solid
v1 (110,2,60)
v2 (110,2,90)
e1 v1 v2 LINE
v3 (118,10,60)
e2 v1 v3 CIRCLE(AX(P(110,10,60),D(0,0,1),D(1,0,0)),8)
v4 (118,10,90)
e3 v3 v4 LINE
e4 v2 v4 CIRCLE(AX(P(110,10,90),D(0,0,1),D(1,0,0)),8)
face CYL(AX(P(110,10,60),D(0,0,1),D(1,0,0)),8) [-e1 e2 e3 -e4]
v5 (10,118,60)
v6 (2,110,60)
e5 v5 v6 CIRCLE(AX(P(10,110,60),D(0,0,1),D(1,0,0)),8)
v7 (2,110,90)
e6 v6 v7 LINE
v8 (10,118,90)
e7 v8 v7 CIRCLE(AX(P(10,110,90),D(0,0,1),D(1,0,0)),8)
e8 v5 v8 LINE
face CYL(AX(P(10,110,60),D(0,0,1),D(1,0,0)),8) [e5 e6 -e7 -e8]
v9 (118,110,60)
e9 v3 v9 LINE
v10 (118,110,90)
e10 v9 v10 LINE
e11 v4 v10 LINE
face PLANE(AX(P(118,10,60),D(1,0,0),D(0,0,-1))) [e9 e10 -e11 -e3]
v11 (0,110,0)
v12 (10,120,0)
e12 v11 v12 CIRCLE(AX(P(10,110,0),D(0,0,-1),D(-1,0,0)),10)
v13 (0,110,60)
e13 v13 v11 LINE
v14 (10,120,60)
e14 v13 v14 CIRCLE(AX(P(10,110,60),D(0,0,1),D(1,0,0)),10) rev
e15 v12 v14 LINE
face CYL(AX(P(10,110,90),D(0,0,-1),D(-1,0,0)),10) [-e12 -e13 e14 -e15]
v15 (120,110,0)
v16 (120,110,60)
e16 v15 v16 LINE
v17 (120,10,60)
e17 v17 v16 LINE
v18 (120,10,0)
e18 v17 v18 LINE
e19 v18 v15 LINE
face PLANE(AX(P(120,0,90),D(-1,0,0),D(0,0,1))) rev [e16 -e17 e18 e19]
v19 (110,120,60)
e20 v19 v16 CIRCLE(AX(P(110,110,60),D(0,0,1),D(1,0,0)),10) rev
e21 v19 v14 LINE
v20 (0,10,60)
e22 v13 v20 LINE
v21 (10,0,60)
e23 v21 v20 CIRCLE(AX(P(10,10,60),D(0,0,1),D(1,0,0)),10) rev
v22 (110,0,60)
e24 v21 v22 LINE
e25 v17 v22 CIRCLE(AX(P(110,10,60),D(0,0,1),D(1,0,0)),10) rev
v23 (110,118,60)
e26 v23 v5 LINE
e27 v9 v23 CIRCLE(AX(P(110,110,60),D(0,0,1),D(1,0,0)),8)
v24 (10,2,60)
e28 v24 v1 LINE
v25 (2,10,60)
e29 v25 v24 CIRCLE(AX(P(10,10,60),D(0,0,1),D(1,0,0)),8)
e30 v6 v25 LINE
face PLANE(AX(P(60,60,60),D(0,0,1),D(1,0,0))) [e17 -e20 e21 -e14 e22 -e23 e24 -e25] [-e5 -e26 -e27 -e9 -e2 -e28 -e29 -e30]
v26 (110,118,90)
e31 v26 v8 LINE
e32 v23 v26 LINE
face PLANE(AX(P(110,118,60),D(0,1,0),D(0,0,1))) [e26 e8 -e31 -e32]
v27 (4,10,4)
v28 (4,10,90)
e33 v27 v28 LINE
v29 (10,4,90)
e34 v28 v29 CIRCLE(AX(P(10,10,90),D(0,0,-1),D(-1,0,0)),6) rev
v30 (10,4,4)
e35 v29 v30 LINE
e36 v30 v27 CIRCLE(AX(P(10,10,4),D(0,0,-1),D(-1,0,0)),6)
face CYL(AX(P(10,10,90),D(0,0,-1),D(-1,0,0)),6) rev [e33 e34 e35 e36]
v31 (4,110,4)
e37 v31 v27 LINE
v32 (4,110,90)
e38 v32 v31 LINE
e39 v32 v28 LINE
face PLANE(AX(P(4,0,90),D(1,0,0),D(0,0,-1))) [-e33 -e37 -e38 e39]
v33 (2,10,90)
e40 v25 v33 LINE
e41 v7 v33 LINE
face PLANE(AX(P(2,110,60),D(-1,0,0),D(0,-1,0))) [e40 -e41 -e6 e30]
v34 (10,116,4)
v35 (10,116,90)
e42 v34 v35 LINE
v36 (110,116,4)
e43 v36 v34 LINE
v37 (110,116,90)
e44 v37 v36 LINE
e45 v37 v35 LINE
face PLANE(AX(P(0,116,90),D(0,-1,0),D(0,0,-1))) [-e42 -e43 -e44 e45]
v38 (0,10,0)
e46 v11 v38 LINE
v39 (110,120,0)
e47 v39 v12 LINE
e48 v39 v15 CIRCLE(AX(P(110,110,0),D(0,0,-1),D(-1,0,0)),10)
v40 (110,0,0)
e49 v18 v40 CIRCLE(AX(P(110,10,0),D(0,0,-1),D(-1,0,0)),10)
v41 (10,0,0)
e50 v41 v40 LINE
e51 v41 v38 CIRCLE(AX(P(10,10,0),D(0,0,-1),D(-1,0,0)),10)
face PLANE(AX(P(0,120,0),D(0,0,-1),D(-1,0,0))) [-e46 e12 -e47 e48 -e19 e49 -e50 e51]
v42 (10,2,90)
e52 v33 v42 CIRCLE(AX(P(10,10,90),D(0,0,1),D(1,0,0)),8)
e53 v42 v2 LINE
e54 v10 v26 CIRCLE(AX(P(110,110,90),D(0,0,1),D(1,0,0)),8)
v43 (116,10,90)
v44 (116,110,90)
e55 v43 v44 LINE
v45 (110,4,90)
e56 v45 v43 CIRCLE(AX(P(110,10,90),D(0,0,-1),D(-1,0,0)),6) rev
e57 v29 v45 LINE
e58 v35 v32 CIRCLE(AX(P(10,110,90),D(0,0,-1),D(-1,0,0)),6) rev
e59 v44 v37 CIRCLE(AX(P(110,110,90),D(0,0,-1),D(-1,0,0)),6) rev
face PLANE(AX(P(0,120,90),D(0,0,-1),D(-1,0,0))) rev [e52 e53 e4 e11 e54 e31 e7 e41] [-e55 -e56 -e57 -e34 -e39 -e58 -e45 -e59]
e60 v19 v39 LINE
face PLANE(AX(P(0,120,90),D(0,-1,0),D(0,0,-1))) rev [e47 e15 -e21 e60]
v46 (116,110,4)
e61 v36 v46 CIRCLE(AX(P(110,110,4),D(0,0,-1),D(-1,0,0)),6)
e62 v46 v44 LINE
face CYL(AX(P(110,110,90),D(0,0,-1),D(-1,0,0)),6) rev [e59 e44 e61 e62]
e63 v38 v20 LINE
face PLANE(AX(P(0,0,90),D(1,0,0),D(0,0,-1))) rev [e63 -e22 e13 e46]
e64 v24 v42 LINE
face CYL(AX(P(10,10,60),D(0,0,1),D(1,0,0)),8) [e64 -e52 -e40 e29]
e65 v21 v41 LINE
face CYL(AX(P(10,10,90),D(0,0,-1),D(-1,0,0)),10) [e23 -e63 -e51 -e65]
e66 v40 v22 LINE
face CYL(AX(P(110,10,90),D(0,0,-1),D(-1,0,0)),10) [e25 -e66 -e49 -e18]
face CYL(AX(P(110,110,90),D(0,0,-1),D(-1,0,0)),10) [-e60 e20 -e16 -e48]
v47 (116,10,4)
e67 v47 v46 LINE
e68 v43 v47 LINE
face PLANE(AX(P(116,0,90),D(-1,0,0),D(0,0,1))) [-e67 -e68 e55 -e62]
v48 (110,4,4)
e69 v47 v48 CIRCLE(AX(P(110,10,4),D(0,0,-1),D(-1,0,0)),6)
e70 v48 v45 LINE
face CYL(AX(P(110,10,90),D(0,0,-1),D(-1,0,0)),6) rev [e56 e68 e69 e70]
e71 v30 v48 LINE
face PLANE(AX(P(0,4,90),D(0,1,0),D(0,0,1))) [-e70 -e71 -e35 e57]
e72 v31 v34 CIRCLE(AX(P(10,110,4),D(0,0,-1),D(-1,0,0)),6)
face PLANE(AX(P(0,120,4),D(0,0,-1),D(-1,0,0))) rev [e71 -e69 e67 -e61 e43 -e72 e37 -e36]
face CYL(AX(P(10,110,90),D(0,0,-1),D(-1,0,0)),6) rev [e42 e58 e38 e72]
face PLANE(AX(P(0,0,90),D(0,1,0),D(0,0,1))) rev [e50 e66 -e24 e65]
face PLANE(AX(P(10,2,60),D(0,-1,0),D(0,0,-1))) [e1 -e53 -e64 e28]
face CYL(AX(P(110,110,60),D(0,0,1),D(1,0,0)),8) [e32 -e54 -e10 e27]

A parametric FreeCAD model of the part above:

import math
import FreeCAD as App
import Part
import Sketcher


def edges_at(feature, points):
    """Names of the edges that pass closest to the given points."""
    edges = feature.Shape.Edges
    near = lambda p: min(range(len(edges)), key=lambda i: edges[i].distToShape(Part.Vertex(*p))[0])
    return sorted({f"Edge{near(p) + 1}" for p in points})


def faces_at(feature, points):
    """Names of the faces that lie closest to the given points."""
    faces = feature.Shape.Faces
    near = lambda p: min(range(len(faces)), key=lambda i: faces[i].distToShape(Part.Vertex(*p))[0])
    return sorted({f"Face{near(p) + 1}" for p in points})


def add_polygon(sketch, points):
    """Adds a closed chain of lines whose ends are joined by coincident constraints."""
    first, n = sketch.GeometryCount, len(points)
    for a, b in zip(points, points[1:] + points[:1]):
        sketch.addGeometry(Part.LineSegment(App.Vector(*a, 0), App.Vector(*b, 0)), False)
    for i in range(n):
        sketch.addConstraint(Sketcher.Constraint("Coincident", first + i, 2, first + (i + 1) % n, 1))

doc = App.newDocument("Part")
params = doc.addObject("Spreadsheet::Sheet", "Params")
for row, (alias, value) in enumerate([
    ("sketch1_width", "120 mm"),
    ("pad1_length", "90 mm"),
    ("fillet_radius", "10 mm"),
    ("fillet2_radius", "10 mm"),
    ("fillet3_radius", "10 mm"),
    ("fillet4_radius", "10 mm"),
    ("thickness_wall", "4 mm"),
    ("sketch2_radius", "8 mm"),
    ("sketch2_width", "100 mm"),
    ("pocket1_length", "30 mm"),
], start=1):
    params.set(f"A{row}", alias)
    params.set(f"B{row}", "=" + value)
    params.setAlias(f"B{row}", alias)

body = doc.addObject("PartDesign::Body", "Body")

# Sketch on XY plane
sketch1 = doc.addObject("Sketcher::SketchObject", "Sketch")
body.addObject(sketch1)
sketch1.AttachmentSupport = (doc.XY_Plane, [""])
sketch1.MapMode = "FlatFace"
add_polygon(sketch1, [(0, 120), (0, 0), (120, 0), (120, 120)])  # lines 0-3
sketch1.addConstraint(Sketcher.Constraint("Vertical", 0))
sketch1.addConstraint(Sketcher.Constraint("Horizontal", 1))
sketch1.addConstraint(Sketcher.Constraint("Vertical", 2))
sketch1.addConstraint(Sketcher.Constraint("Horizontal", 3))
sketch1.addConstraint(Sketcher.Constraint("Coincident", 0, 2, -1, 1))
sketch1.addConstraint(Sketcher.Constraint("Equal", 3, 0))
sketch1.addConstraint(Sketcher.Constraint("DistanceX", 1, 1, 1, 2, 120.0))
sketch1.setExpression("Constraints[10]", "Params.sketch1_width")
pad1 = doc.addObject("PartDesign::Pad", "Pad")
body.addObject(pad1)
pad1.Profile = sketch1
pad1.setExpression("Length", "Params.pad1_length")
doc.recompute()

fillet = doc.addObject("PartDesign::Fillet", "Fillet")
body.addObject(fillet)
fillet.Base = (pad1, edges_at(pad1, [(120, 120, 45)]))
fillet.setExpression("Radius", "Params.fillet_radius")
doc.recompute()

fillet2 = doc.addObject("PartDesign::Fillet", "Fillet001")
body.addObject(fillet2)
fillet2.Base = (fillet, edges_at(fillet, [(0, 120, 45)]))
fillet2.setExpression("Radius", "Params.fillet2_radius")
doc.recompute()

fillet3 = doc.addObject("PartDesign::Fillet", "Fillet002")
body.addObject(fillet3)
fillet3.Base = (fillet2, edges_at(fillet2, [(0, 0, 45)]))
fillet3.setExpression("Radius", "Params.fillet3_radius")
doc.recompute()

fillet4 = doc.addObject("PartDesign::Fillet", "Fillet003")
body.addObject(fillet4)
fillet4.Base = (fillet3, edges_at(fillet3, [(120, 0, 45)]))
fillet4.setExpression("Radius", "Params.fillet4_radius")
doc.recompute()

thickness = doc.addObject("PartDesign::Thickness", "Thickness")
body.addObject(thickness)
thickness.Base = (fillet4, faces_at(fillet4, [(60, 60, 90)]))
thickness.setExpression("Value", "Params.thickness_wall")
thickness.Reversed = True
thickness.Join = "Intersection"

# Sketch on XY plane
sketch2 = doc.addObject("Sketcher::SketchObject", "Sketch001")
body.addObject(sketch2)
sketch2.AttachmentSupport = (doc.XY_Plane, [""])
sketch2.MapMode = "FlatFace"
sketch2.AttachmentOffset = App.Placement(App.Vector(0, 0, 90), App.Rotation())
add_polygon(sketch2, [(-20, 140), (-20, -20), (140, -20), (140, 140)])  # lines 0-3
sketch2.addGeometry(Part.LineSegment(App.Vector(110, 2, 0), App.Vector(10, 2, 0)), False)  # 4
sketch2.addGeometry(Part.ArcOfCircle(Part.Circle(App.Vector(10, 10, 0), App.Vector(0, 0, 1), 8), math.radians(-180), math.radians(-90)), False)  # 5
sketch2.addGeometry(Part.LineSegment(App.Vector(2, 10, 0), App.Vector(2, 110, 0)), False)  # 6
sketch2.addGeometry(Part.ArcOfCircle(Part.Circle(App.Vector(10, 110, 0), App.Vector(0, 0, 1), 8), math.radians(90), math.radians(180)), False)  # 7
sketch2.addGeometry(Part.LineSegment(App.Vector(10, 118, 0), App.Vector(110, 118, 0)), False)  # 8
sketch2.addGeometry(Part.ArcOfCircle(Part.Circle(App.Vector(110, 110, 0), App.Vector(0, 0, 1), 8), math.radians(0), math.radians(90)), False)  # 9
sketch2.addGeometry(Part.LineSegment(App.Vector(118, 110, 0), App.Vector(118, 10, 0)), False)  # 10
sketch2.addGeometry(Part.ArcOfCircle(Part.Circle(App.Vector(110, 10, 0), App.Vector(0, 0, 1), 8), math.radians(-90), math.radians(0)), False)  # 11
sketch2.addConstraint(Sketcher.Constraint("Tangent", 4, 2, 5, 2))
sketch2.addConstraint(Sketcher.Constraint("Tangent", 5, 1, 6, 1))
sketch2.addConstraint(Sketcher.Constraint("Tangent", 6, 2, 7, 2))
sketch2.addConstraint(Sketcher.Constraint("Tangent", 7, 1, 8, 1))
sketch2.addConstraint(Sketcher.Constraint("Tangent", 8, 2, 9, 2))
sketch2.addConstraint(Sketcher.Constraint("Tangent", 9, 1, 10, 1))
sketch2.addConstraint(Sketcher.Constraint("Tangent", 10, 2, 11, 2))
sketch2.addConstraint(Sketcher.Constraint("Tangent", 11, 1, 4, 1))
sketch2.addConstraint(Sketcher.Constraint("Vertical", 0))
sketch2.addConstraint(Sketcher.Constraint("Horizontal", 1))
sketch2.addConstraint(Sketcher.Constraint("Vertical", 2))
sketch2.addConstraint(Sketcher.Constraint("Horizontal", 3))
sketch2.addConstraint(Sketcher.Constraint("Horizontal", 4))
sketch2.addConstraint(Sketcher.Constraint("Vertical", 6))
sketch2.addConstraint(Sketcher.Constraint("Horizontal", 8))
sketch2.addConstraint(Sketcher.Constraint("Vertical", 10))
sketch2.addConstraint(Sketcher.Constraint("Equal", 5, 7))
sketch2.addConstraint(Sketcher.Constraint("Equal", 7, 9))
sketch2.addConstraint(Sketcher.Constraint("Equal", 9, 11))
sketch2.addConstraint(Sketcher.Constraint("Equal", 3, 0))
sketch2.addConstraint(Sketcher.Constraint("Equal", 8, 6))
sketch2.addConstraint(Sketcher.Constraint("Radius", 5, 8.0))
sketch2.addConstraint(Sketcher.Constraint("DistanceX", 4, 2, 4, 1, 100.0))
sketch2.addConstraint(Sketcher.Constraint("DistanceX", -1, 1, 5, 3, 10.0))
sketch2.addConstraint(Sketcher.Constraint("DistanceY", -1, 1, 5, 3, 10.0))
sketch2.addConstraint(Sketcher.Constraint("DistanceX", 1, 1, 1, 2, 160.418))
sketch2.addConstraint(Sketcher.Constraint("DistanceX", 0, 2, -1, 1, 20.209))
sketch2.addConstraint(Sketcher.Constraint("DistanceY", 0, 2, -1, 1, 20.209))
sketch2.setExpression("Constraints[25]", "Params.sketch2_radius")
sketch2.setExpression("Constraints[26]", "Params.sketch2_width")
pocket1 = doc.addObject("PartDesign::Pocket", "Pocket")
body.addObject(pocket1)
pocket1.Profile = sketch2
pocket1.setExpression("Length", "Params.pocket1_length")

doc.recompute()
